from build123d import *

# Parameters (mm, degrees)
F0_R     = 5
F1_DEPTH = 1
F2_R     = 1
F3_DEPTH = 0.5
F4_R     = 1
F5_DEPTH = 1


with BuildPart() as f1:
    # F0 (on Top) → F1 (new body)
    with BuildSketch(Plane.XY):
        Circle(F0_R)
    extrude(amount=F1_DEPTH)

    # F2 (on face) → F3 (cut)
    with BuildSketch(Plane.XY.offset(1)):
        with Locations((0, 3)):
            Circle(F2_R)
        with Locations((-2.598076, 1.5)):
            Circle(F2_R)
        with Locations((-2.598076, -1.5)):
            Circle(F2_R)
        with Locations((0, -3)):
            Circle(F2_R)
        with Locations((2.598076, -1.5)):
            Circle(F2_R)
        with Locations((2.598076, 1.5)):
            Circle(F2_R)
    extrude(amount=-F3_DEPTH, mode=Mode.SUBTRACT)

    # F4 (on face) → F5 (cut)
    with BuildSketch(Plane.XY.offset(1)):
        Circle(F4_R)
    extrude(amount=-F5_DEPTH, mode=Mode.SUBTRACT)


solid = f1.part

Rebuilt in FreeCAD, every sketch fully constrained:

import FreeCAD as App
import Part
import Sketcher

V = App.Vector
Q = App.Units.Quantity

doc = App.newDocument("Part")
body = doc.addObject("PartDesign::Body", "Body")

sketch1 = body.newObject("Sketcher::SketchObject", "Sketch")
sketch1.AttachmentSupport = (doc.getObject("XY_Plane"), [""])
sketch1.MapMode = "FlatFace"
sketch1.addGeometry(Part.Circle(V(0, 0, 0), V(0, 0, 1), 5), False)
sketch1.addConstraint([
    Sketcher.Constraint("Coincident", 0, 3, -1, 1),
    Sketcher.Constraint("Diameter", 0, Q("10 mm")),
])
pad1 = body.newObject("PartDesign::Pad", "Pad")
pad1.Profile = sketch1
pad1.Length = 1

sketch2 = body.newObject("Sketcher::SketchObject", "Sketch001")
sketch2.AttachmentSupport = (doc.getObject("XY_Plane"), [""])
sketch2.MapMode = "FlatFace"
sketch2.AttachmentOffset = App.Placement(V(0, 0, 1), App.Rotation())
sketch2.addGeometry([
    Part.Circle(V(0, 3, 0), V(0, 0, 1), 1),
    Part.Circle(V(-2.6, 1.5, 0), V(0, 0, 1), 1),
    Part.Circle(V(-2.6, -1.5, 0), V(0, 0, 1), 1),
    Part.Circle(V(0, -3, 0), V(0, 0, 1), 1),
    Part.Circle(V(2.6, -1.5, 0), V(0, 0, 1), 1),
    Part.Circle(V(2.6, 1.5, 0), V(0, 0, 1), 1),
], False)
sketch2.addConstraint([
    Sketcher.Constraint("Equal", 0, 1),
    Sketcher.Constraint("Equal", 1, 2),
    Sketcher.Constraint("Equal", 2, 3),
    Sketcher.Constraint("Equal", 3, 4),
    Sketcher.Constraint("Equal", 4, 5),
    Sketcher.Constraint("Symmetric", 0, 3, 3, 3, -1, 1),
    Sketcher.Constraint("Symmetric", 1, 3, 4, 3, -1, 1),
    Sketcher.Constraint("Symmetric", 2, 3, 5, 3, -1, 1),
    Sketcher.Constraint("Symmetric", 2, 3, 4, 3, -2),
    Sketcher.Constraint("PointOnObject", 0, 3, -2),
    Sketcher.Constraint("Diameter", 0, Q("2 mm")),
    Sketcher.Constraint("DistanceY", -1, 1, 0, 3, Q("3 mm")),
    Sketcher.Constraint("DistanceY", 2, 3, 1, 3, Q("3 mm")),
    Sketcher.Constraint("DistanceX", 2, 3, 4, 3, Q("5.196152 mm")),
])
pocket1 = body.newObject("PartDesign::Pocket", "Pocket")
pocket1.Profile = sketch2
pocket1.Length = 0.5

sketch3 = body.newObject("Sketcher::SketchObject", "Sketch002")
sketch3.AttachmentSupport = (doc.getObject("XY_Plane"), [""])
sketch3.MapMode = "FlatFace"
sketch3.AttachmentOffset = App.Placement(V(0, 0, 1), App.Rotation())
sketch3.addGeometry(Part.Circle(V(0, 0, 0), V(0, 0, 1), 1), False)
sketch3.addConstraint([
    Sketcher.Constraint("Coincident", 0, 3, -1, 1),
    Sketcher.Constraint("Diameter", 0, Q("2 mm")),
])
pocket2 = body.newObject("PartDesign::Pocket", "Pocket001")
pocket2.Profile = sketch3
pocket2.Length = 1

doc.recompute()
